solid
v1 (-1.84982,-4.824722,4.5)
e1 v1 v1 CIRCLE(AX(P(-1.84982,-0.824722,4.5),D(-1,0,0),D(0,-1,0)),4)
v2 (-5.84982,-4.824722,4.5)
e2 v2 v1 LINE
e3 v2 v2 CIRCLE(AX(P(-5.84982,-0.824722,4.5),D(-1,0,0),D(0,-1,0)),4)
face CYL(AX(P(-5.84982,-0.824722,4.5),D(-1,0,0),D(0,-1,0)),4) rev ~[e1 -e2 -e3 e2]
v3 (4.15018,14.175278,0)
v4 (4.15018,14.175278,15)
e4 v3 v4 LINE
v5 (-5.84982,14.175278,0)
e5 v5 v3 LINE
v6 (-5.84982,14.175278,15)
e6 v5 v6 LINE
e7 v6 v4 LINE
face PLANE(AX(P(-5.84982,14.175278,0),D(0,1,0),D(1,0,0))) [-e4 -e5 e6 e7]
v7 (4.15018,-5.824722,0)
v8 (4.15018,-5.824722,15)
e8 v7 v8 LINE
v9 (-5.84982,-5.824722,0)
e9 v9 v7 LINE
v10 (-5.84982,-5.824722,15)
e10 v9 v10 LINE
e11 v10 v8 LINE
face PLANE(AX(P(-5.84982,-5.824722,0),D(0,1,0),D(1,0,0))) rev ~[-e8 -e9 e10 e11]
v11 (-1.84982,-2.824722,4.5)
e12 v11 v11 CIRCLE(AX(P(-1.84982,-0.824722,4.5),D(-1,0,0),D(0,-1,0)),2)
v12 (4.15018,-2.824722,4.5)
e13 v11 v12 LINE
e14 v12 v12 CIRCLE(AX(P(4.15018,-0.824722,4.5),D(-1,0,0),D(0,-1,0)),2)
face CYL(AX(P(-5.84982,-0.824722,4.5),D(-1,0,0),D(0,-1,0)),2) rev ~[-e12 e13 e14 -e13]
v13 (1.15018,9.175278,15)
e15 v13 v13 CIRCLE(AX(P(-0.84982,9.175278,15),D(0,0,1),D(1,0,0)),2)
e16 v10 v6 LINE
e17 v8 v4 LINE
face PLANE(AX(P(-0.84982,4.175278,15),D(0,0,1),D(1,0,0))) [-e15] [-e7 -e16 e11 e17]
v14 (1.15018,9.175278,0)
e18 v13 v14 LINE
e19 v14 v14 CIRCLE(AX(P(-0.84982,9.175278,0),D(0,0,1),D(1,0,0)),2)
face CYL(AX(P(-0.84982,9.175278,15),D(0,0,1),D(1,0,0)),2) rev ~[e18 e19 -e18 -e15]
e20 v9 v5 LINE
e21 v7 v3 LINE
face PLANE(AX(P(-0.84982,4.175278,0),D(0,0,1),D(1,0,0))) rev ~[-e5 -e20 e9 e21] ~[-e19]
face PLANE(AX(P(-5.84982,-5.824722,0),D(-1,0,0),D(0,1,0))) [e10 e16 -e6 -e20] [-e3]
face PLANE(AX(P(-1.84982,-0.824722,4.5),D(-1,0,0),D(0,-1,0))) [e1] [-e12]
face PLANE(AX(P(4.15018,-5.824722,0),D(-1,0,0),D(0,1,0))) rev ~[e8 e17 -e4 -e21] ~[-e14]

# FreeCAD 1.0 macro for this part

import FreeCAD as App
import Part
import Sketcher

V = App.Vector
Q = App.Units.Quantity

doc = App.newDocument("Part")
body = doc.addObject("PartDesign::Body", "Body")

# Sketch on XY plane
sketch1 = body.newObject("Sketcher::SketchObject", "Sketch")
sketch1.AttachmentSupport = (doc.getObject("XY_Plane"), [""])
sketch1.MapMode = "FlatFace"
sketch1.addGeometry(Part.LineSegment(V(-6, 14, 0), V(-6, -6, 0)), False)
sketch1.addGeometry(Part.LineSegment(V(-6, -6, 0), V(4, -6, 0)), False)
sketch1.addGeometry(Part.LineSegment(V(4, -6, 0), V(4, 14, 0)), False)
sketch1.addGeometry(Part.LineSegment(V(4, 14, 0), V(-6, 14, 0)), False)
sketch1.addConstraint(Sketcher.Constraint("Coincident", 0, 2, 1, 1))
sketch1.addConstraint(Sketcher.Constraint("Coincident", 1, 2, 2, 1))
sketch1.addConstraint(Sketcher.Constraint("Coincident", 2, 2, 3, 1))
sketch1.addConstraint(Sketcher.Constraint("Coincident", 3, 2, 0, 1))
sketch1.addConstraint(Sketcher.Constraint("Vertical", 0))
sketch1.addConstraint(Sketcher.Constraint("Horizontal", 1))
sketch1.addConstraint(Sketcher.Constraint("Vertical", 2))
sketch1.addConstraint(Sketcher.Constraint("Horizontal", 3))
sketch1.addConstraint(Sketcher.Constraint("DistanceX", 1, 1, 1, 2, Q("10 mm")))
sketch1.addConstraint(Sketcher.Constraint("DistanceY", 0, 2, 0, 1, Q("20 mm")))
sketch1.addConstraint(Sketcher.Constraint("DistanceX", 0, 2, -1, 1, Q("5.84982 mm")))
sketch1.addConstraint(Sketcher.Constraint("DistanceY", 0, 2, -1, 1, Q("5.824722 mm")))
pad1 = body.newObject("PartDesign::Pad", "Pad")
pad1.Profile = sketch1
pad1.Length = 15

# Sketch on XY plane
sketch2 = body.newObject("Sketcher::SketchObject", "Sketch001")
sketch2.AttachmentSupport = (doc.getObject("XY_Plane"), [""])
sketch2.MapMode = "FlatFace"
sketch2.AttachmentOffset = App.Placement(V(0, 0, 15), App.Rotation())
sketch2.addGeometry(Part.Circle(V(-0.8, 9.2, 0), V(0, 0, 1), 2), False)
sketch2.addConstraint(Sketcher.Constraint("Diameter", 0, Q("4 mm")))
sketch2.addConstraint(Sketcher.Constraint("DistanceX", 0, 3, -1, 1, Q("0.84982 mm")))
sketch2.addConstraint(Sketcher.Constraint("DistanceY", -1, 1, 0, 3, Q("9.175278 mm")))
pocket1 = body.newObject("PartDesign::Pocket", "Pocket")
pocket1.Profile = sketch2
pocket1.Length = 20

# Sketch on YZ plane
sketch3 = body.newObject("Sketcher::SketchObject", "Sketch002")
sketch3.AttachmentSupport = (doc.getObject("YZ_Plane"), [""])
sketch3.MapMode = "FlatFace"
sketch3.AttachmentOffset = App.Placement(V(0, 0, -5.84982), App.Rotation())
sketch3.addGeometry(Part.Circle(V(-0.8, 4.5, 0), V(0, 0, 1), 2), False)
sketch3.addConstraint(Sketcher.Constraint("Diameter", 0, Q("4 mm")))
sketch3.addConstraint(Sketcher.Constraint("DistanceY", -1, 1, 0, 3, Q("4.5 mm")))
sketch3.addConstraint(Sketcher.Constraint("DistanceX", 0, 3, -1, 1, Q("0.824722 mm")))
pocket2 = body.newObject("PartDesign::Pocket", "Pocket001")
pocket2.Profile = sketch3
pocket2.Length = 20
pocket2.Reversed = True

# Sketch on YZ plane
sketch4 = body.newObject("Sketcher::SketchObject", "Sketch003")
sketch4.AttachmentSupport = (doc.getObject("YZ_Plane"), [""])
sketch4.MapMode = "FlatFace"
sketch4.AttachmentOffset = App.Placement(V(0, 0, -5.84982), App.Rotation())
sketch4.addGeometry(Part.Circle(V(-0.8, 4.5, 0), V(0, 0, 1), 4), False)
sketch4.addGeometry(Part.Circle(V(-0.8, 4.5, 0), V(0, 0, 1), 2), False)
sketch4.addConstraint(Sketcher.Constraint("Coincident", 1, 3, 0, 3))
sketch4.addConstraint(Sketcher.Constraint("Diameter", 0, Q("8 mm")))
sketch4.addConstraint(Sketcher.Constraint("Diameter", 1, Q("4 mm")))
sketch4.addConstraint(Sketcher.Constraint("DistanceY", -1, 1, 0, 3, Q("4.5 mm")))
sketch4.addConstraint(Sketcher.Constraint("DistanceX", 0, 3, -1, 1, Q("0.824722 mm")))
pocket3 = body.newObject("PartDesign::Pocket", "Pocket002")
pocket3.Profile = sketch4
pocket3.Length = 4
pocket3.Reversed = True

doc.recompute()
